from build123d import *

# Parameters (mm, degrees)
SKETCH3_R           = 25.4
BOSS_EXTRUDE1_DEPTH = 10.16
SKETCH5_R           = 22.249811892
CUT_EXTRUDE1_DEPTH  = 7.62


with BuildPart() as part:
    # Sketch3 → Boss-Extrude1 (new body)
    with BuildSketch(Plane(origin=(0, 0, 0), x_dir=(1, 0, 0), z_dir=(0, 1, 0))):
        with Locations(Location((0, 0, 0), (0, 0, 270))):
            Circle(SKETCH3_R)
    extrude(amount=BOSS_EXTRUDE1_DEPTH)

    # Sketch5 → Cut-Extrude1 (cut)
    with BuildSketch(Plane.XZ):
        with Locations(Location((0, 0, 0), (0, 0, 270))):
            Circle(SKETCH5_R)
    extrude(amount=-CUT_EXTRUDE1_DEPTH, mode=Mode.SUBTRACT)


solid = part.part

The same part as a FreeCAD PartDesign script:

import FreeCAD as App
import Part
import Sketcher
from FreeCAD import Vector
Q = App.Units.Quantity

doc = App.newDocument("Part")
body = doc.addObject("PartDesign::Body", "Body")

# Sketch on XZ plane
sketch1 = doc.addObject("Sketcher::SketchObject", "Sketch")
body.addObject(sketch1)
sketch1.AttachmentSupport = (doc.XZ_Plane, [""])
sketch1.MapMode = "FlatFace"
sketch1.addGeometry(Part.Circle(Vector(0, 0, 0), Vector(0, 0, 1), 25), False)
sketch1.addConstraint([
    Sketcher.Constraint("Coincident", 0, 3, -1, 1),
    Sketcher.Constraint("Diameter", 0, Q("2 in")),
])
pad1 = doc.addObject("PartDesign::Pad", "Pad")
body.addObject(pad1)
pad1.Profile = sketch1
pad1.Length = Q("0.4 in")
pad1.Reversed = True

# Sketch on XZ plane
sketch2 = doc.addObject("Sketcher::SketchObject", "Sketch001")
body.addObject(sketch2)
sketch2.AttachmentSupport = (doc.XZ_Plane, [""])
sketch2.MapMode = "FlatFace"
sketch2.addGeometry(Part.Circle(Vector(0, 0, 0), Vector(0, 0, 1), 22), False)
sketch2.addConstraint([
    Sketcher.Constraint("Coincident", 0, 3, -1, 1),
    Sketcher.Constraint("Diameter", 0, 44.499624),
])
pocket1 = doc.addObject("PartDesign::Pocket", "Pocket")
body.addObject(pocket1)
pocket1.Profile = sketch2
pocket1.Length = Q("0.3 in")

doc.recompute()
